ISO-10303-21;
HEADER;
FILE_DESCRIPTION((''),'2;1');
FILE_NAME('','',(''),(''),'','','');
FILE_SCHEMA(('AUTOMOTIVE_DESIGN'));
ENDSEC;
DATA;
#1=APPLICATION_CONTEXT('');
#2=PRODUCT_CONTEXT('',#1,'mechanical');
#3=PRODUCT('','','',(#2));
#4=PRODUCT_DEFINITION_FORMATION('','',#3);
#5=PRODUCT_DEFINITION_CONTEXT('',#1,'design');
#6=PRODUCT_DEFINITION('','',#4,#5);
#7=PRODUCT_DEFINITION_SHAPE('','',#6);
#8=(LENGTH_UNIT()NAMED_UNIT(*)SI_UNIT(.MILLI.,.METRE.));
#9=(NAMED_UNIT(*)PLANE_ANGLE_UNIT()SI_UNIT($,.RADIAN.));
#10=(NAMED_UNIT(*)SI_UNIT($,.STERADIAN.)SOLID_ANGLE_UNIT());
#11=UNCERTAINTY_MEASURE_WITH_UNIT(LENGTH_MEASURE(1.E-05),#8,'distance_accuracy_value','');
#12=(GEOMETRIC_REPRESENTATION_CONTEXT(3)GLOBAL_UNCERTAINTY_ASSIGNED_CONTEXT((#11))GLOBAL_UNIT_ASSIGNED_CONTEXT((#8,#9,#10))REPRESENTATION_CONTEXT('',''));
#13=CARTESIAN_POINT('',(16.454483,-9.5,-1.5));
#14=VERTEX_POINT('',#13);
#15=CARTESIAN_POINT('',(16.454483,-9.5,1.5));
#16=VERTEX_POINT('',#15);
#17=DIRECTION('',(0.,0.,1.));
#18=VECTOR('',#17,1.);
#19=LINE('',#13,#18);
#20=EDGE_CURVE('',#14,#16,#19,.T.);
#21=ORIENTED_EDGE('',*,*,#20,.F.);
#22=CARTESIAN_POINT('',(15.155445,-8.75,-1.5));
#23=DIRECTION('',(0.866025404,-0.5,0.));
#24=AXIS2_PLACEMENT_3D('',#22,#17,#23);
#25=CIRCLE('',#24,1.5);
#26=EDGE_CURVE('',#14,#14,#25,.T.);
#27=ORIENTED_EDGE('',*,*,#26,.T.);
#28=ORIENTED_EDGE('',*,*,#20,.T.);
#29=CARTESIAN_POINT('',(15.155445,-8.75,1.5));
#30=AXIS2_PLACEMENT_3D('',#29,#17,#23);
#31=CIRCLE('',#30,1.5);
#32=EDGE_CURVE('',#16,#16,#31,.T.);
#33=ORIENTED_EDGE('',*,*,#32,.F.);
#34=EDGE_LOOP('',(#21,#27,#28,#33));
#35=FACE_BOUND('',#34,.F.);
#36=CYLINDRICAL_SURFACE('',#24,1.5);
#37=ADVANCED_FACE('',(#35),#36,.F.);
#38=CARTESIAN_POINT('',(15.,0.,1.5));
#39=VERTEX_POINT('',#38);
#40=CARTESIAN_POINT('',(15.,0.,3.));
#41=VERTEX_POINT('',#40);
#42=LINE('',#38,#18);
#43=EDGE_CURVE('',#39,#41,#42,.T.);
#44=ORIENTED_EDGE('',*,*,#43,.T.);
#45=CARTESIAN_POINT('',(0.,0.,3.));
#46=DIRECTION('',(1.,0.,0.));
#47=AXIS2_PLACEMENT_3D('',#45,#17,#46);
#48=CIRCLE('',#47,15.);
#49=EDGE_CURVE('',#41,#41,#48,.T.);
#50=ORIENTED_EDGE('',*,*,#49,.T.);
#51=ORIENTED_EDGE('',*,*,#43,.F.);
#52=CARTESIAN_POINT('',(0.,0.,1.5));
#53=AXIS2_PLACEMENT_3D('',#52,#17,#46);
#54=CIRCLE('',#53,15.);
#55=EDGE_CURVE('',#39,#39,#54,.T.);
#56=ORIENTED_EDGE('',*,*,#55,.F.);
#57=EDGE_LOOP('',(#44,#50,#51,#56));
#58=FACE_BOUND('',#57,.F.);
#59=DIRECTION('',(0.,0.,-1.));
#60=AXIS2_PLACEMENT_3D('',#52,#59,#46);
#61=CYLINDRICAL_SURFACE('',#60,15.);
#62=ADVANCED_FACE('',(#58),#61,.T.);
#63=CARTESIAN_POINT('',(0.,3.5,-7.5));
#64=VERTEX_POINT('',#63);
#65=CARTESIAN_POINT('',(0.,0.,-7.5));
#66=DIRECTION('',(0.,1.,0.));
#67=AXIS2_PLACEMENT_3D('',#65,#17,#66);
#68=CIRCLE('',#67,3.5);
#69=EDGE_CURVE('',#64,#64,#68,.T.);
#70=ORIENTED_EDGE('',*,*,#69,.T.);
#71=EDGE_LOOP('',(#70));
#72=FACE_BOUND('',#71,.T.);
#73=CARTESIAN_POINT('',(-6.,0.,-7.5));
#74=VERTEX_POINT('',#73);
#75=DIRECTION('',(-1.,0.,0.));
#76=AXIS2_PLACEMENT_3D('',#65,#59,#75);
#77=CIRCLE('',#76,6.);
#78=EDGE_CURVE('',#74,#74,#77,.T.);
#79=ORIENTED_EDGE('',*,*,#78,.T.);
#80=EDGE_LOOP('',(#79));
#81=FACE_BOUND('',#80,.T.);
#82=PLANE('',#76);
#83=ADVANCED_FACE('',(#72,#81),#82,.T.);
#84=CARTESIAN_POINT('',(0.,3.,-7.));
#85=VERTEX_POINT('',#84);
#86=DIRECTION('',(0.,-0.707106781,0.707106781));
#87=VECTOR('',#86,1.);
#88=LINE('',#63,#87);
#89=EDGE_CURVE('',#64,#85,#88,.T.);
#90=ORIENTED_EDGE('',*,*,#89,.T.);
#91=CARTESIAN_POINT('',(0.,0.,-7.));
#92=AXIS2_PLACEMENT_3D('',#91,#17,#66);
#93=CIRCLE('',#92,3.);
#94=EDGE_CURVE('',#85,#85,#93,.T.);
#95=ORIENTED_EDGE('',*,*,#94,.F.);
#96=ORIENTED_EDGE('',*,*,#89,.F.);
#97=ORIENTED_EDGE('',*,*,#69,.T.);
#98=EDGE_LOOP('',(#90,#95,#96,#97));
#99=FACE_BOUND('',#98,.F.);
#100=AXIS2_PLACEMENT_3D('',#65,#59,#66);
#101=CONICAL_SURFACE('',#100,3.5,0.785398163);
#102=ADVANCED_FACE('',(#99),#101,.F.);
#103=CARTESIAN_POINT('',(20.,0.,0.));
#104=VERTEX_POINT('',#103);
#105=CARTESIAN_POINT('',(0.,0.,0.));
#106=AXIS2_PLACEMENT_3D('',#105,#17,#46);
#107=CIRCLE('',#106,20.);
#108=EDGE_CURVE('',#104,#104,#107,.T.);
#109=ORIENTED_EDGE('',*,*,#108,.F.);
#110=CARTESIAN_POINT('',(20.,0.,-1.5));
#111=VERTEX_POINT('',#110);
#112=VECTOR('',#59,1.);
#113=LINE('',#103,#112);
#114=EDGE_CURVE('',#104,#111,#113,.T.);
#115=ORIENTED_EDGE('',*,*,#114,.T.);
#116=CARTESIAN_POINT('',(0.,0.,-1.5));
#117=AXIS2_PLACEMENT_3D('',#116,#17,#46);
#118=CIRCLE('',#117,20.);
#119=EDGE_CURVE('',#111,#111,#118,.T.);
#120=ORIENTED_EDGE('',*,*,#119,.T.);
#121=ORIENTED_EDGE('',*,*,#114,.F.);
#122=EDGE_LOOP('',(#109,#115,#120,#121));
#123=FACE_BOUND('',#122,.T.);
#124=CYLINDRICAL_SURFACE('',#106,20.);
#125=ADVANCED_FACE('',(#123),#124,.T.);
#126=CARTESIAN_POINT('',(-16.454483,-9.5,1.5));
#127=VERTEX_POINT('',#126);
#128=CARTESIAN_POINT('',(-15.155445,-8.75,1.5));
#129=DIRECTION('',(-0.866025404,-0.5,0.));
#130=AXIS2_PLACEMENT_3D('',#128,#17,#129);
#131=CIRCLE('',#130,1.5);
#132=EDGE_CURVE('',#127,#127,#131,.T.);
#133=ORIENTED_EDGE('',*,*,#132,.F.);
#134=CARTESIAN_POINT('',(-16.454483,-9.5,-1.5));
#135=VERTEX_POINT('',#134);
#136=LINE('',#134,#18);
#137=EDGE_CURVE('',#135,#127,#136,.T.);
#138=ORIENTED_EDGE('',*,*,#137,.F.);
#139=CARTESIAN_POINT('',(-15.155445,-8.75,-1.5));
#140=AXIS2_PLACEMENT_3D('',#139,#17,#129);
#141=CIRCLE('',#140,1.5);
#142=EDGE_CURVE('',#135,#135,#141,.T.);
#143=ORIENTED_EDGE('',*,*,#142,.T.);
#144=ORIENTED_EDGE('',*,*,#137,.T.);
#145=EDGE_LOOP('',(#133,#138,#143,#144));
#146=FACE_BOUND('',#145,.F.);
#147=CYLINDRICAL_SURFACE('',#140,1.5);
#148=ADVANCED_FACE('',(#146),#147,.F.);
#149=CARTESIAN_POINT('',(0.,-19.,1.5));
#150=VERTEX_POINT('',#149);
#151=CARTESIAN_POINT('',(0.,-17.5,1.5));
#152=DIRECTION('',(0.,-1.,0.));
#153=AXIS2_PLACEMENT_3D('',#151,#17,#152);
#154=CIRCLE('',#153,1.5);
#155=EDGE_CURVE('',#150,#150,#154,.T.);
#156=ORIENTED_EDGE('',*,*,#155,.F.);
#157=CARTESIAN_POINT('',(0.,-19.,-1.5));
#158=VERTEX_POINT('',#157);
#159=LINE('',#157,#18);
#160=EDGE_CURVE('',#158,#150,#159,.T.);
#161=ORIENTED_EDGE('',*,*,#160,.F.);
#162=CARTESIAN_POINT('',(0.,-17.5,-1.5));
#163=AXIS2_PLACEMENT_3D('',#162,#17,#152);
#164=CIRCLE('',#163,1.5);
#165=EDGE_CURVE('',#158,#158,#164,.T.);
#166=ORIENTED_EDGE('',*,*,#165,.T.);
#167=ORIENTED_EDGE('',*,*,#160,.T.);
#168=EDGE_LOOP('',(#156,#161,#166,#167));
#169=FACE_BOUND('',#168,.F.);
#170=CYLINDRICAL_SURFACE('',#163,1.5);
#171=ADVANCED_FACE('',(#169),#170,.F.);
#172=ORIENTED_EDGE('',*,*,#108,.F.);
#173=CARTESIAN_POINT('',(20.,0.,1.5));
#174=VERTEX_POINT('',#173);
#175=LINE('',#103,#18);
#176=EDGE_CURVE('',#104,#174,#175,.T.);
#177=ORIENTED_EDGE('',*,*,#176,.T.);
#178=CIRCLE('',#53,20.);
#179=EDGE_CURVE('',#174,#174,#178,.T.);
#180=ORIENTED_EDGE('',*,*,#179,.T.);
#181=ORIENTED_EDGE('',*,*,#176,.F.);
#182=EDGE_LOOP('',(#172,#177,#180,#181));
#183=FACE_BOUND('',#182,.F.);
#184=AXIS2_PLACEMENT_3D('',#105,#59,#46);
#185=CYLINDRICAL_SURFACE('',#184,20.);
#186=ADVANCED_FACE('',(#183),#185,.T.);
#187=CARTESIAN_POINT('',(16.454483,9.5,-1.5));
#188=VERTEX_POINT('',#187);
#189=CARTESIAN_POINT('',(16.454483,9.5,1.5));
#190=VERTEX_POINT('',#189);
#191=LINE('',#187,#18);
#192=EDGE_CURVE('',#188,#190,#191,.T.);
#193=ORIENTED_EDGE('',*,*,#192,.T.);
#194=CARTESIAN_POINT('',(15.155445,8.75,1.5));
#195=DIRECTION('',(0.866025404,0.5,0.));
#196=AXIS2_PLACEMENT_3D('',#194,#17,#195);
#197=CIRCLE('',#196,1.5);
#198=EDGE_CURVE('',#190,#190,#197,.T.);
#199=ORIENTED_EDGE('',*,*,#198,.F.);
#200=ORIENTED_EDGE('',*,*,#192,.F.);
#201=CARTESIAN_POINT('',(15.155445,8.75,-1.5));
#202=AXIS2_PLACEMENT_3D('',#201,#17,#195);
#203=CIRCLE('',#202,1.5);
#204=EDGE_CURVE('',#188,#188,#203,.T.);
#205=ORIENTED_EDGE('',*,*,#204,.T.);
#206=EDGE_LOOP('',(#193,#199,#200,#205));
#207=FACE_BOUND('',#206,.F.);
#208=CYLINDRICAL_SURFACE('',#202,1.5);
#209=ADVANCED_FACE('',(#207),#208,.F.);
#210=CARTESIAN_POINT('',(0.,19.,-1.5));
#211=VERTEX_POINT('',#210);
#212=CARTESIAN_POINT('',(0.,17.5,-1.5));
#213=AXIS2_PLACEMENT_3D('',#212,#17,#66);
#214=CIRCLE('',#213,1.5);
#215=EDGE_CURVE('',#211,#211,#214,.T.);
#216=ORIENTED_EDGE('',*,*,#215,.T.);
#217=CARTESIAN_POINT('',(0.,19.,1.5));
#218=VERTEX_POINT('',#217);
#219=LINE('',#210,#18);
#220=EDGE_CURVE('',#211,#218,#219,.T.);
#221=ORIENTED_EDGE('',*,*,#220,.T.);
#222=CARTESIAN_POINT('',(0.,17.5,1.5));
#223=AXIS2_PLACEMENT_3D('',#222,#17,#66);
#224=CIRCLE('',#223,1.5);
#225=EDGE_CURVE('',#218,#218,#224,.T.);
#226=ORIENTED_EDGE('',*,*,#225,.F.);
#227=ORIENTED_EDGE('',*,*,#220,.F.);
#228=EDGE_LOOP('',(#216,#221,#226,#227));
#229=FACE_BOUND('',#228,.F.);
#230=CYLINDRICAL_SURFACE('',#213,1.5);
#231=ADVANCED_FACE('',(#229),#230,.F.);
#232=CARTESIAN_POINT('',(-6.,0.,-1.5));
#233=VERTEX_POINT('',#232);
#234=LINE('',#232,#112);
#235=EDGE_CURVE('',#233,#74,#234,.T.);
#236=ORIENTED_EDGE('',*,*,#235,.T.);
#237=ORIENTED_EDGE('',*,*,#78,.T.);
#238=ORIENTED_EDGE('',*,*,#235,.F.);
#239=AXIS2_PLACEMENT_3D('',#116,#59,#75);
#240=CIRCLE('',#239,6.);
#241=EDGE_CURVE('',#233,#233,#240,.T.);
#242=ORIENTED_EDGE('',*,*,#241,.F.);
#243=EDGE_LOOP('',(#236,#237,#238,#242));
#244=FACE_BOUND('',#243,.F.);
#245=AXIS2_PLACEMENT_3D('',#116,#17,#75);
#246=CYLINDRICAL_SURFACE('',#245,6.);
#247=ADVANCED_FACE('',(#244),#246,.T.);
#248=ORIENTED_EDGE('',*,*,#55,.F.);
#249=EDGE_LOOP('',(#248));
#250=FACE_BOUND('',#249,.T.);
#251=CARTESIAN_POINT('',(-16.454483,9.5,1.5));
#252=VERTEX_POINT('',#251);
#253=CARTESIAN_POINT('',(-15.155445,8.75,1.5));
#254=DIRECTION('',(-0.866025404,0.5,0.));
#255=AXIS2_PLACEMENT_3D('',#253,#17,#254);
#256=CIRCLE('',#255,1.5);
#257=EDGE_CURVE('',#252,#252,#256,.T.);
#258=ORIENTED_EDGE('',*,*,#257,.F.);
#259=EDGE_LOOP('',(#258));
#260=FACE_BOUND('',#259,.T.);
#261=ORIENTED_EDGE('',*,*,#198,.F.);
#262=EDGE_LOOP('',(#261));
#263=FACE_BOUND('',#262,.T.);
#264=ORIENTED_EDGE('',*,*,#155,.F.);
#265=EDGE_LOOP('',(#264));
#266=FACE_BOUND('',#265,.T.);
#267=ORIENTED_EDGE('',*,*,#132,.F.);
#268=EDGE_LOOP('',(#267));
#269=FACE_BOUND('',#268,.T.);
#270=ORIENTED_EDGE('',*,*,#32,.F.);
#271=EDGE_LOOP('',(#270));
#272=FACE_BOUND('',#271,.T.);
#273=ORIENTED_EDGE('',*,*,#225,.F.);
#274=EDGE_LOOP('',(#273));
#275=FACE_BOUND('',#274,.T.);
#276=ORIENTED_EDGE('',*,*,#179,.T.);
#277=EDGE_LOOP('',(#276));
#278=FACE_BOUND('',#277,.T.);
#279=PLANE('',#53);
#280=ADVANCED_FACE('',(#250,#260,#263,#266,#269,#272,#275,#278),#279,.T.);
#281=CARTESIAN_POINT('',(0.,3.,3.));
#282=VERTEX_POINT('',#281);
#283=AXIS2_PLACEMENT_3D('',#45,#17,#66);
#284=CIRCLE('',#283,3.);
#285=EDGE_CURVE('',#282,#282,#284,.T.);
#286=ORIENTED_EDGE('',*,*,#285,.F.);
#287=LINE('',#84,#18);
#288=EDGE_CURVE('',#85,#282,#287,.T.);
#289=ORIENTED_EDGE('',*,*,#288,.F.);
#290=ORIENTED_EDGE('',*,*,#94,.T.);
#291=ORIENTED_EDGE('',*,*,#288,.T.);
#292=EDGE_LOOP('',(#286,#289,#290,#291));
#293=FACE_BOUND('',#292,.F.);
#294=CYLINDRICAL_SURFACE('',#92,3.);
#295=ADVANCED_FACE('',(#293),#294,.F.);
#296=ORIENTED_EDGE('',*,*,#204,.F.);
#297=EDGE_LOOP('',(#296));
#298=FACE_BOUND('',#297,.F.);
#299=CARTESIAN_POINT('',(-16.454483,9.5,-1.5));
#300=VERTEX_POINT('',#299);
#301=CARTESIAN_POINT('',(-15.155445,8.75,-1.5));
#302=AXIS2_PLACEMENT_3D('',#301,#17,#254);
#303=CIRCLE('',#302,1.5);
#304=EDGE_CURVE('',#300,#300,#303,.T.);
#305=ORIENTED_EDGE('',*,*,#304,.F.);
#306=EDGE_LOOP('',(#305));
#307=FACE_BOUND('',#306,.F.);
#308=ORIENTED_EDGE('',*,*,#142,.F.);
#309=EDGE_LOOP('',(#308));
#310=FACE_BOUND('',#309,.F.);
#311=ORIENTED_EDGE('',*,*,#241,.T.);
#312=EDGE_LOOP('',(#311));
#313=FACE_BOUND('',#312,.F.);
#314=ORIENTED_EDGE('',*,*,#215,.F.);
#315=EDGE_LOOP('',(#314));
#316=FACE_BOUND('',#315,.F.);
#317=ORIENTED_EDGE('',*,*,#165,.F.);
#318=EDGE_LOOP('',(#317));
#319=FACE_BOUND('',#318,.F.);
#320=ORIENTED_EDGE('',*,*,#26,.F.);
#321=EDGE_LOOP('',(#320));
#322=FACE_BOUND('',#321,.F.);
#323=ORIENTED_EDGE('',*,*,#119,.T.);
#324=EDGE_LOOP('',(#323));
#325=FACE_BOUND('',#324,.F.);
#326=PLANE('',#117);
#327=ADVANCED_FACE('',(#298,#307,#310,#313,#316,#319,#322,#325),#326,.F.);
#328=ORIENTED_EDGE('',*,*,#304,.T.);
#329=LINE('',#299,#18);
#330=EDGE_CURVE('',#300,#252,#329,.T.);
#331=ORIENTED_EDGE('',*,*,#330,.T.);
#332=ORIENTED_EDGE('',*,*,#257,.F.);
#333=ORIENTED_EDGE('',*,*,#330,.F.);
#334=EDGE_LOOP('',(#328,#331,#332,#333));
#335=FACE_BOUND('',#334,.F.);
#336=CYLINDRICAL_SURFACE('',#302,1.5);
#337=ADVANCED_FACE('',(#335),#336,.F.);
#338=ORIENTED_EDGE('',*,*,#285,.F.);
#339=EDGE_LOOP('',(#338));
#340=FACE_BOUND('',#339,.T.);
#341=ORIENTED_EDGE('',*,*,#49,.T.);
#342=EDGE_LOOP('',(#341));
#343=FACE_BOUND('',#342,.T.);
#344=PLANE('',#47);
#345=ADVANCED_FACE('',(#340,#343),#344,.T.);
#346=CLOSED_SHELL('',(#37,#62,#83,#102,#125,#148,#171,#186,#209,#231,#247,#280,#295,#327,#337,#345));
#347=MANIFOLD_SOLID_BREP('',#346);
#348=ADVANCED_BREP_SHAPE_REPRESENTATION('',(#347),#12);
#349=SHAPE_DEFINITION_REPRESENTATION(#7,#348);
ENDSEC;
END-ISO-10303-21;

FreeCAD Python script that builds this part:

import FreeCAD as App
import Part
import Sketcher
from FreeCAD import Vector

doc = App.newDocument("Part")
params = doc.addObject("Spreadsheet::Sheet", "Params")
for row, (alias, value) in enumerate([
    ("sketch1_diameter", "40 mm"),
    ("pad1_length", "3 mm"),
    ("sketch2_diameter", "30 mm"),
    ("pad2_length", "1.5 mm"),
    ("sketch3_diameter", "3 mm"),
    ("hole_diameter", "3 mm"),
    ("hole_depth", "3 mm"),
    ("sketch4_diameter", "12 mm"),
    ("pad3_length", "6 mm"),
    ("sketch5_diameter", "6 mm"),
    ("hole2_diameter", "6 mm"),
    ("hole2_depth", "10.5 mm"),
    ("hole2_csink_diameter", "7 mm"),
], start=1):
    params.set(f"A{row}", alias)
    params.set(f"B{row}", "=" + value)
    params.setAlias(f"B{row}", alias)

body = doc.addObject("PartDesign::Body", "Body")

# Sketch on XY plane
sketch1 = body.newObject("Sketcher::SketchObject", "Sketch")
sketch1.AttachmentSupport = (doc.getObject("XY_Plane"), [""])
sketch1.MapMode = "FlatFace"
sketch1.addGeometry(Part.Circle(Vector(0, 0, 0), Vector(0, 0, 1), 20), False)
sketch1.addConstraint(Sketcher.Constraint("Coincident", 0, 3, -1, 1))
sketch1.addConstraint(Sketcher.Constraint("Diameter", 0, 40.0))
sketch1.setExpression("Constraints[1]", "Params.sketch1_diameter")
pad1 = body.newObject("PartDesign::Pad", "Pad")
pad1.Profile = sketch1
pad1.setExpression("Length", "Params.pad1_length")
pad1.Midplane = True

# Sketch on XY plane
sketch2 = body.newObject("Sketcher::SketchObject", "Sketch001")
sketch2.AttachmentSupport = (doc.getObject("XY_Plane"), [""])
sketch2.MapMode = "FlatFace"
sketch2.AttachmentOffset = App.Placement(Vector(0, 0, 1.5), App.Rotation())
sketch2.addGeometry(Part.Circle(Vector(0, 0, 0), Vector(0, 0, 1), 15), False)
sketch2.addConstraint(Sketcher.Constraint("Coincident", 0, 3, -1, 1))
sketch2.addConstraint(Sketcher.Constraint("Diameter", 0, 30.0))
sketch2.setExpression("Constraints[1]", "Params.sketch2_diameter")
pad2 = body.newObject("PartDesign::Pad", "Pad001")
pad2.Profile = sketch2
pad2.setExpression("Length", "Params.pad2_length")

# Sketch on XY plane
sketch3 = body.newObject("Sketcher::SketchObject", "Sketch002")
sketch3.AttachmentSupport = (doc.getObject("XY_Plane"), [""])
sketch3.MapMode = "FlatFace"
sketch3.AttachmentOffset = App.Placement(Vector(0, 0, -1.5), App.Rotation())
sketch3.addGeometry(Part.Circle(Vector(0, 17.5, 0), Vector(0, 0, 1), 1.5), False)
sketch3.addConstraint(Sketcher.Constraint("PointOnObject", 0, 3, -2))
sketch3.addConstraint(Sketcher.Constraint("Diameter", 0, 3.0))
sketch3.addConstraint(Sketcher.Constraint("DistanceY", -1, 1, 0, 3, 17.5))
sketch3.setExpression("Constraints[1]", "Params.sketch3_diameter")
doc.recompute()
hole = body.newObject("PartDesign::Hole", "Hole")
hole.Profile = sketch3
hole.ThreadType = "None"
hole.setExpression("Diameter", "Params.hole_diameter")
hole.DepthType = "Dimension"
hole.setExpression("Depth", "Params.hole_depth")
hole.DrillPoint = "Flat"
hole.Reversed = True
doc.recompute()

polarpattern = body.newObject("PartDesign::PolarPattern", "PolarPattern")
polarpattern.Originals = [hole]
polarpattern.Axis = (doc.getObject("Z_Axis"), [""])
polarpattern.Angle = 360
polarpattern.Occurrences = 6
body.Tip = polarpattern

# Sketch on XY plane
sketch4 = body.newObject("Sketcher::SketchObject", "Sketch003")
sketch4.AttachmentSupport = (doc.getObject("XY_Plane"), [""])
sketch4.MapMode = "FlatFace"
sketch4.AttachmentOffset = App.Placement(Vector(0, 0, -1.5), App.Rotation())
sketch4.addGeometry(Part.Circle(Vector(0, 0, 0), Vector(0, 0, 1), 6), False)
sketch4.addConstraint(Sketcher.Constraint("Coincident", 0, 3, -1, 1))
sketch4.addConstraint(Sketcher.Constraint("Diameter", 0, 12.0))
sketch4.setExpression("Constraints[1]", "Params.sketch4_diameter")
pad3 = body.newObject("PartDesign::Pad", "Pad002")
pad3.Profile = sketch4
pad3.setExpression("Length", "Params.pad3_length")
pad3.Reversed = True

# Sketch on XY plane
sketch5 = body.newObject("Sketcher::SketchObject", "Sketch004")
sketch5.AttachmentSupport = (doc.getObject("XY_Plane"), [""])
sketch5.MapMode = "FlatFace"
sketch5.AttachmentOffset = App.Placement(Vector(0, 0, -7.5), App.Rotation())
sketch5.addGeometry(Part.Circle(Vector(0, 0, 0), Vector(0, 0, 1), 3), False)
sketch5.addConstraint(Sketcher.Constraint("Coincident", 0, 3, -1, 1))
sketch5.addConstraint(Sketcher.Constraint("Diameter", 0, 6.0))
sketch5.setExpression("Constraints[1]", "Params.sketch5_diameter")
doc.recompute()
hole2 = body.newObject("PartDesign::Hole", "Hole001")
hole2.Profile = sketch5
hole2.ThreadType = "None"
hole2.setExpression("Diameter", "Params.hole2_diameter")
hole2.DepthType = "Dimension"
hole2.setExpression("Depth", "Params.hole2_depth")
hole2.DrillPoint = "Flat"
hole2.HoleCutType = "Countersink"
hole2.setExpression("HoleCutDiameter", "Params.hole2_csink_diameter")
hole2.HoleCutCountersinkAngle = 90
hole2.Reversed = True

doc.recompute()
